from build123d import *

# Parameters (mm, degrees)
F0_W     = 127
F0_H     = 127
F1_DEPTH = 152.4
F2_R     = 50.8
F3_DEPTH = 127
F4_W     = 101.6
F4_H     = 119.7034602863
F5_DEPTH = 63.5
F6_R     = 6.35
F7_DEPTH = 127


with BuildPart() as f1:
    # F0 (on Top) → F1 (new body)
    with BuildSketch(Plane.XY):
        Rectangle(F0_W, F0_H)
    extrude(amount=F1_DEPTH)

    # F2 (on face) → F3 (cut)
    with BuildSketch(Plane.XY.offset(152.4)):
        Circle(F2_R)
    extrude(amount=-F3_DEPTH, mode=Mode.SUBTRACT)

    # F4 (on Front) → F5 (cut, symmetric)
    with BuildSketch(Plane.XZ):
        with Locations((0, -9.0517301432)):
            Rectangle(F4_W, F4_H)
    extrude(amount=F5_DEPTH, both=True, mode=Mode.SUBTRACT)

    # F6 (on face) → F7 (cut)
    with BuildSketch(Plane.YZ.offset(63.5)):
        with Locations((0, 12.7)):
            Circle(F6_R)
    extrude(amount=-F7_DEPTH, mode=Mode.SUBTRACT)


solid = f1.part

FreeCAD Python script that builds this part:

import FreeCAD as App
import Part
import Sketcher
from FreeCAD import Vector
Q = App.Units.Quantity

doc = App.newDocument("Part")
params = doc.addObject("Spreadsheet::Sheet", "Params")
for row, (alias, value) in enumerate([
    ("sketch1_width", "5 in"),
    ("pad1_length", "6 in"),
    ("sketch2_diameter", "4 in"),
    ("pocket1_length", "5 in"),
    ("sketch3_width", "4 in"),
    ("pocket2_length", "5 in"),
    ("sketch4_diameter", "0.5 in"),
    ("pocket3_length", "5 in"),
], start=1):
    params.set(f"A{row}", alias)
    params.set(f"B{row}", "=" + value)
    params.setAlias(f"B{row}", alias)

body = doc.addObject("PartDesign::Body", "Body")

# Sketch on XY plane
sketch1 = doc.addObject("Sketcher::SketchObject", "Sketch")
body.addObject(sketch1)
sketch1.AttachmentSupport = (doc.XY_Plane, [""])
sketch1.MapMode = "FlatFace"
sketch1.addGeometry([
    Part.LineSegment(Vector(-64, 64, 0), Vector(-64, -64, 0)),
    Part.LineSegment(Vector(-64, -64, 0), Vector(64, -64, 0)),
    Part.LineSegment(Vector(64, -64, 0), Vector(64, 64, 0)),
    Part.LineSegment(Vector(64, 64, 0), Vector(-64, 64, 0)),
], False)
sketch1.addConstraint([
    Sketcher.Constraint("Coincident", 0, 2, 1, 1),
    Sketcher.Constraint("Coincident", 1, 2, 2, 1),
    Sketcher.Constraint("Coincident", 2, 2, 3, 1),
    Sketcher.Constraint("Coincident", 3, 2, 0, 1),
    Sketcher.Constraint("Vertical", 0),
    Sketcher.Constraint("Horizontal", 1),
    Sketcher.Constraint("Vertical", 2),
    Sketcher.Constraint("Horizontal", 3),
    Sketcher.Constraint("Symmetric", 0, 2, 2, 2, -1, 1),
    Sketcher.Constraint("Equal", 3, 0),
    Sketcher.Constraint("DistanceX", 1, 1, 1, 2, Q("5 in")),
])
sketch1.setExpression("Constraints[10]", "Params.sketch1_width")
pad1 = doc.addObject("PartDesign::Pad", "Pad")
body.addObject(pad1)
pad1.Profile = sketch1
pad1.setExpression("Length", "Params.pad1_length")

# Sketch on XY plane
sketch2 = doc.addObject("Sketcher::SketchObject", "Sketch001")
body.addObject(sketch2)
sketch2.AttachmentSupport = (doc.XY_Plane, [""])
sketch2.MapMode = "FlatFace"
sketch2.AttachmentOffset = App.Placement(Vector(0, 0, 6 * 25.4), App.Rotation())
sketch2.addGeometry(Part.Circle(Vector(0, 0, 0), Vector(0, 0, 1), 51), False)
sketch2.addConstraint([
    Sketcher.Constraint("Coincident", 0, 3, -1, 1),
    Sketcher.Constraint("Diameter", 0, Q("4 in")),
])
sketch2.setExpression("Constraints[1]", "Params.sketch2_diameter")
pocket1 = doc.addObject("PartDesign::Pocket", "Pocket")
body.addObject(pocket1)
pocket1.Profile = sketch2
pocket1.setExpression("Length", "Params.pocket1_length")

# Sketch on XZ plane
sketch3 = doc.addObject("Sketcher::SketchObject", "Sketch002")
body.addObject(sketch3)
sketch3.AttachmentSupport = (doc.XZ_Plane, [""])
sketch3.MapMode = "FlatFace"
sketch3.addGeometry([
    Part.LineSegment(Vector(-51, 51, 0), Vector(-51, -69, 0)),
    Part.LineSegment(Vector(-51, -69, 0), Vector(51, -69, 0)),
    Part.LineSegment(Vector(51, -69, 0), Vector(51, 51, 0)),
    Part.LineSegment(Vector(51, 51, 0), Vector(-51, 51, 0)),
], False)
sketch3.addConstraint([
    Sketcher.Constraint("Coincident", 0, 2, 1, 1),
    Sketcher.Constraint("Coincident", 1, 2, 2, 1),
    Sketcher.Constraint("Coincident", 2, 2, 3, 1),
    Sketcher.Constraint("Coincident", 3, 2, 0, 1),
    Sketcher.Constraint("Vertical", 0),
    Sketcher.Constraint("Horizontal", 1),
    Sketcher.Constraint("Vertical", 2),
    Sketcher.Constraint("Horizontal", 3),
    Sketcher.Constraint("DistanceX", 1, 1, 1, 2, Q("4 in")),
    Sketcher.Constraint("DistanceX", 0, 2, -1, 1, Q("2 in")),
    Sketcher.Constraint("DistanceY", -1, 1, 2, 2, Q("2 in")),
    Sketcher.Constraint("DistanceY", 0, 2, 0, 1, 119.70346),
])
sketch3.setExpression("Constraints[8]", "Params.sketch3_width")
pocket2 = doc.addObject("PartDesign::Pocket", "Pocket001")
body.addObject(pocket2)
pocket2.Profile = sketch3
pocket2.setExpression("Length", "Params.pocket2_length")
pocket2.Midplane = True

# Sketch on YZ plane
sketch4 = doc.addObject("Sketcher::SketchObject", "Sketch003")
body.addObject(sketch4)
sketch4.AttachmentSupport = (doc.YZ_Plane, [""])
sketch4.MapMode = "FlatFace"
sketch4.AttachmentOffset = App.Placement(Vector(0, 0, 2.5 * 25.4), App.Rotation())
sketch4.addGeometry(Part.Circle(Vector(0, 13, 0), Vector(0, 0, 1), 6), False)
sketch4.addConstraint([
    Sketcher.Constraint("PointOnObject", 0, 3, -2),
    Sketcher.Constraint("Diameter", 0, Q("0.5 in")),
    Sketcher.Constraint("DistanceY", -1, 1, 0, 3, Q("0.5 in")),
])
sketch4.setExpression("Constraints[1]", "Params.sketch4_diameter")
pocket3 = doc.addObject("PartDesign::Pocket", "Pocket002")
body.addObject(pocket3)
pocket3.Profile = sketch4
pocket3.setExpression("Length", "Params.pocket3_length")

doc.recompute()
